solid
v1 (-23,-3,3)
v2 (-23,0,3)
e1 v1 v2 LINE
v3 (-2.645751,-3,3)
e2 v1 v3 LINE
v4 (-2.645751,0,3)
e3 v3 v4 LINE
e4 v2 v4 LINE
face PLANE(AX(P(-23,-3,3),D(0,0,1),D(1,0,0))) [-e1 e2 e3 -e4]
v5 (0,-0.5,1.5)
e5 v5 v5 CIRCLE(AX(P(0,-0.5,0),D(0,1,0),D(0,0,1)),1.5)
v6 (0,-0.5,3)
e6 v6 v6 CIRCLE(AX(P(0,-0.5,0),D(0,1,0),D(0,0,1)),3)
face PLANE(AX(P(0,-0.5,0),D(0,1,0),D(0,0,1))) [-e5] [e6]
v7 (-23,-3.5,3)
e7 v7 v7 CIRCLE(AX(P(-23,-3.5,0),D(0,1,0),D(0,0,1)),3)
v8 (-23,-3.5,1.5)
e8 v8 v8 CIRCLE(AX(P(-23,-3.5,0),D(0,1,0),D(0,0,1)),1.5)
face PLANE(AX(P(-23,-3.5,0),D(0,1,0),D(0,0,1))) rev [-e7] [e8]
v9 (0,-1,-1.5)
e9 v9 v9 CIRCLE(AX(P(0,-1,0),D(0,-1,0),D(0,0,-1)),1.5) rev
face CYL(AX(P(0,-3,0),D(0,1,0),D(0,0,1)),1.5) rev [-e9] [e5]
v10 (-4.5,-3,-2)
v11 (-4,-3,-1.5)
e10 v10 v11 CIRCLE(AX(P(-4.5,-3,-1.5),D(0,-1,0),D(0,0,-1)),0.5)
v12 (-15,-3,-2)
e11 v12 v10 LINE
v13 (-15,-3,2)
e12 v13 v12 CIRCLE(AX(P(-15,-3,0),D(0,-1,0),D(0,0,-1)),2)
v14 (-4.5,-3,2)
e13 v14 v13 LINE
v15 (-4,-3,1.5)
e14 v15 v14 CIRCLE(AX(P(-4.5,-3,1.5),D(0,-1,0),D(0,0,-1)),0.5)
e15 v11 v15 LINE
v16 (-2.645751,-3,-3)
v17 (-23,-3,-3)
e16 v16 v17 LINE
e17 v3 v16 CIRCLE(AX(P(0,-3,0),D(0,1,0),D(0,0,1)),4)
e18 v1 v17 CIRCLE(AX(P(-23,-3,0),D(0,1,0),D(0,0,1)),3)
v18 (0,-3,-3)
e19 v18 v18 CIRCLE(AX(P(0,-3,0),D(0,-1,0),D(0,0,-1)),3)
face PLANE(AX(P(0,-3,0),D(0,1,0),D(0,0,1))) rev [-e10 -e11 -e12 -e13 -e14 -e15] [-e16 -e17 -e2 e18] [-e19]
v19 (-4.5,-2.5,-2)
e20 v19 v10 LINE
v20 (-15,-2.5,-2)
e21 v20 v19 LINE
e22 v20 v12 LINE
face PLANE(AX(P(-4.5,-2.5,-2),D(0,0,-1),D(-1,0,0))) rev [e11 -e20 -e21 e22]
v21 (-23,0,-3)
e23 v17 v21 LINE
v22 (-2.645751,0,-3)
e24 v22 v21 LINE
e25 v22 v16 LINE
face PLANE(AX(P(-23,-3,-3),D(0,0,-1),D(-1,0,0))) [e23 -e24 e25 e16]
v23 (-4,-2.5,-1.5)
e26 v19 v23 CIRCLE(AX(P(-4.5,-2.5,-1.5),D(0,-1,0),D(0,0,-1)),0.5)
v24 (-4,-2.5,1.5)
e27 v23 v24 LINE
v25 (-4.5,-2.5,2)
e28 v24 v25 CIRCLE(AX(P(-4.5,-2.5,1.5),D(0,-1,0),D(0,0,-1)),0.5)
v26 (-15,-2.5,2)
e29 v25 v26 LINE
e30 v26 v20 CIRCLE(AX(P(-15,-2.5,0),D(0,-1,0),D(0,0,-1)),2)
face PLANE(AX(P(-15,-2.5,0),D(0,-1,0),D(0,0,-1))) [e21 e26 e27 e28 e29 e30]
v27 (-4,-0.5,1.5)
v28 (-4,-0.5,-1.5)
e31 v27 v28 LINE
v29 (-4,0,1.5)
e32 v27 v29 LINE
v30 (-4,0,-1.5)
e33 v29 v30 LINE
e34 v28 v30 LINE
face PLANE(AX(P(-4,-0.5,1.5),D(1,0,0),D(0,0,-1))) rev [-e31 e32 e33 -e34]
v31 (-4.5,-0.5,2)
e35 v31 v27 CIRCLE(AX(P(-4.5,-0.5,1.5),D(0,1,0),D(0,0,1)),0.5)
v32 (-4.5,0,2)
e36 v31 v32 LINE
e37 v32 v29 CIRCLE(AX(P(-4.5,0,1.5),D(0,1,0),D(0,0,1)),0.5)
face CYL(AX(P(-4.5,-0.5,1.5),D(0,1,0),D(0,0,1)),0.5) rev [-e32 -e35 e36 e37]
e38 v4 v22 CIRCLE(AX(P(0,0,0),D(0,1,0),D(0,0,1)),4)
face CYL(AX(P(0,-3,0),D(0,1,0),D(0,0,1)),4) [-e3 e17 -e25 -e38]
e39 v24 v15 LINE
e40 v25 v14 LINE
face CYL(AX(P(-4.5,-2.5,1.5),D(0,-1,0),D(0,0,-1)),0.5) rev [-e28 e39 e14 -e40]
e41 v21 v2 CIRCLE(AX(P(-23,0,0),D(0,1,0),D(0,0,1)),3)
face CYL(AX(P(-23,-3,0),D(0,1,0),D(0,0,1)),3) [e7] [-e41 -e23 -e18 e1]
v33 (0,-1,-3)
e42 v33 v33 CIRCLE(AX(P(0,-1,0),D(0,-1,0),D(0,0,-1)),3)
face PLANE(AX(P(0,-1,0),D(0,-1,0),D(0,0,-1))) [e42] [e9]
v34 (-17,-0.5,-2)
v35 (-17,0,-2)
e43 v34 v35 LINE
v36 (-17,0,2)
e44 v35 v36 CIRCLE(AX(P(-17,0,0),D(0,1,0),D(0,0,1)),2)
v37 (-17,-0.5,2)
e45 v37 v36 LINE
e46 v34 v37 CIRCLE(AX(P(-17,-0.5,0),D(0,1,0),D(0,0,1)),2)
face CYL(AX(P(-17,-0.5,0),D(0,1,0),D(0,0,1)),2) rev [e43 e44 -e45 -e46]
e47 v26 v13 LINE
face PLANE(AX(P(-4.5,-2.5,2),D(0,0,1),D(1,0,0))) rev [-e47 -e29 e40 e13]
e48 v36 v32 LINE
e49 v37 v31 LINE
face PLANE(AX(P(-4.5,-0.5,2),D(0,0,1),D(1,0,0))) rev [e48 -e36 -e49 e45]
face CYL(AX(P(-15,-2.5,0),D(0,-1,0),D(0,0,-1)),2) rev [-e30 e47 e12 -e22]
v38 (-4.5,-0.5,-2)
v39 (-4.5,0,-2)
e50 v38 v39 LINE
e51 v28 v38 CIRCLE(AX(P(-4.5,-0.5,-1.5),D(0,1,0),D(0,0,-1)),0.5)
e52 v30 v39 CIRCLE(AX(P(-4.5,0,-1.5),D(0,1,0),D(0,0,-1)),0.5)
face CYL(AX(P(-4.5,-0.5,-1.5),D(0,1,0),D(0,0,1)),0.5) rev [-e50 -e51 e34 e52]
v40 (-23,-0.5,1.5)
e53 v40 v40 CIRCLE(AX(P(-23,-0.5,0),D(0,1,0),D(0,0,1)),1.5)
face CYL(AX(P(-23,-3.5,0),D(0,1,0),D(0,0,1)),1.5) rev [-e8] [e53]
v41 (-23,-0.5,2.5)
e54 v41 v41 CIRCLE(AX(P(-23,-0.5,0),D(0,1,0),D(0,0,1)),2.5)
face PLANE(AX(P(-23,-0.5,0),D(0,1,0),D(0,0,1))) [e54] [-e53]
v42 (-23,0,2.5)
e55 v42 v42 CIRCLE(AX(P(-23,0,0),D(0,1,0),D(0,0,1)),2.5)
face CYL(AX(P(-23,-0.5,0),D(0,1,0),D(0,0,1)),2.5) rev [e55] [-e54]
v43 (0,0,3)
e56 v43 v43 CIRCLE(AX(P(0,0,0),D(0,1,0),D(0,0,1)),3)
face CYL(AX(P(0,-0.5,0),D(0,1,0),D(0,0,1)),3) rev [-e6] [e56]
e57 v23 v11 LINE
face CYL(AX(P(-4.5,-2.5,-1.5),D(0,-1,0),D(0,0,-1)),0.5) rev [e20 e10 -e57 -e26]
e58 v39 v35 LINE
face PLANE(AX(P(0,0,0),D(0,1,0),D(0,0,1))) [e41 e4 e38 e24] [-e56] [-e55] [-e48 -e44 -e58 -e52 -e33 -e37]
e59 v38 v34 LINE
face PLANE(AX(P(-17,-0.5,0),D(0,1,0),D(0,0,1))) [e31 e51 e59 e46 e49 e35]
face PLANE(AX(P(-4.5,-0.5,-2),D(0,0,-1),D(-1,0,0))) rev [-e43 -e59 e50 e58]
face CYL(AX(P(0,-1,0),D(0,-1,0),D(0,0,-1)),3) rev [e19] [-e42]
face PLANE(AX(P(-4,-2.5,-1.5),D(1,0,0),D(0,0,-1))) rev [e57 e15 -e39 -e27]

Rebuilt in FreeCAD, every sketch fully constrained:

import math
import FreeCAD as App
import Part
import Sketcher

V = App.Vector
Q = App.Units.Quantity


def add_polygon(sketch, points):
    """Adds a closed chain of lines whose ends are joined by coincident constraints."""
    first, n = sketch.GeometryCount, len(points)
    for a, b in zip(points, points[1:] + points[:1]):
        sketch.addGeometry(Part.LineSegment(App.Vector(*a, 0), App.Vector(*b, 0)), False)
    for i in range(n):
        sketch.addConstraint(Sketcher.Constraint("Coincident", first + i, 2, first + (i + 1) % n, 1))

doc = App.newDocument("Part")
params = doc.addObject("Spreadsheet::Sheet", "Params")
for row, (alias, value) in enumerate([
    ("sketch1_diameter", "8 mm"),
    ("pad1_length", "3 mm"),
    ("sketch2_width", "23 mm"),
    ("sketch2_height", "6 mm"),
    ("pad2_length", "3 mm"),
    ("sketch3_diameter", "6 mm"),
    ("pocket1_length", "0.5 mm"),
    ("sketch4_diameter", "3 mm"),
    ("sketch5_diameter", "6 mm"),
    ("pocket3_length", "2 mm"),
    ("sketch6_diameter", "6 mm"),
    ("pad3_length", "3 mm"),
    ("sketch7_diameter", "5 mm"),
    ("pocket4_length", "0.5 mm"),
    ("sketch8_radius", "2 mm"),
    ("sketch8_radius2", "0.5 mm"),
    ("sketch8_width", "12.5 mm"),
    ("pocket5_length", "0.5 mm"),
    ("sketch9_radius", "2 mm"),
    ("sketch9_radius2", "0.5 mm"),
    ("sketch9_width", "10.5 mm"),
    ("pocket6_length", "0.5 mm"),
    ("sketch10_diameter", "6 mm"),
    ("pad4_length", "0.5 mm"),
    ("sketch11_diameter", "3 mm"),
], start=1):
    params.set(f"A{row}", alias)
    params.set(f"B{row}", "=" + value)
    params.setAlias(f"B{row}", alias)

body = doc.addObject("PartDesign::Body", "Body")

# Sketch on XZ plane
sketch1 = body.newObject("Sketcher::SketchObject", "Sketch")
sketch1.AttachmentSupport = (doc.getObject("XZ_Plane"), [""])
sketch1.MapMode = "FlatFace"
sketch1.addGeometry(Part.Circle(V(0, 0, 0), V(0, 0, 1), 4), False)
sketch1.addConstraint([
    Sketcher.Constraint("Coincident", 0, 3, -1, 1),
    Sketcher.Constraint("Diameter", 0, Q("8 mm")),
])
sketch1.setExpression("Constraints[1]", "Params.sketch1_diameter")
pad1 = body.newObject("PartDesign::Pad", "Pad")
pad1.Profile = sketch1
pad1.setExpression("Length", "Params.pad1_length")

# Sketch on XZ plane
sketch2 = body.newObject("Sketcher::SketchObject", "Sketch001")
sketch2.AttachmentSupport = (doc.getObject("XZ_Plane"), [""])
sketch2.MapMode = "FlatFace"
add_polygon(sketch2, [(-23, -3), (-23, 3), (0, 3), (0, -3)])  # lines 0-3
sketch2.addConstraint([
    Sketcher.Constraint("Vertical", 0),
    Sketcher.Constraint("Horizontal", 1),
    Sketcher.Constraint("Vertical", 2),
    Sketcher.Constraint("Horizontal", 3),
    Sketcher.Constraint("Symmetric", 1, 2, 2, 2, -1, 1),
    Sketcher.Constraint("DistanceX", 1, 1, 1, 2, Q("23 mm")),
    Sketcher.Constraint("DistanceY", 0, 1, 0, 2, Q("6 mm")),
])
sketch2.setExpression("Constraints[9]", "Params.sketch2_width")
sketch2.setExpression("Constraints[10]", "Params.sketch2_height")
pad2 = body.newObject("PartDesign::Pad", "Pad001")
pad2.Profile = sketch2
pad2.setExpression("Length", "Params.pad2_length")

# Sketch on XZ plane
sketch3 = body.newObject("Sketcher::SketchObject", "Sketch002")
sketch3.AttachmentSupport = (doc.getObject("XZ_Plane"), [""])
sketch3.MapMode = "FlatFace"
sketch3.addGeometry(Part.Circle(V(0, 0, 0), V(0, 0, 1), 3), False)
sketch3.addConstraint([
    Sketcher.Constraint("Coincident", 0, 3, -1, 1),
    Sketcher.Constraint("Diameter", 0, Q("6 mm")),
])
sketch3.setExpression("Constraints[1]", "Params.sketch3_diameter")
pocket1 = body.newObject("PartDesign::Pocket", "Pocket")
pocket1.Profile = sketch3
pocket1.setExpression("Length", "Params.pocket1_length")
pocket1.Reversed = True

# Sketch on XZ plane
sketch4 = body.newObject("Sketcher::SketchObject", "Sketch003")
sketch4.AttachmentSupport = (doc.getObject("XZ_Plane"), [""])
sketch4.MapMode = "FlatFace"
sketch4.AttachmentOffset = App.Placement(V(0, 0, 0.5), App.Rotation())
sketch4.addGeometry(Part.Circle(V(0, 0, 0), V(0, 0, 1), 1.5), False)
sketch4.addConstraint([
    Sketcher.Constraint("Coincident", 0, 3, -1, 1),
    Sketcher.Constraint("Diameter", 0, Q("3 mm")),
])
sketch4.setExpression("Constraints[1]", "Params.sketch4_diameter")
pocket2 = body.newObject("PartDesign::Pocket", "Pocket001")
pocket2.Profile = sketch4
pocket2.Type = "ThroughAll"
pocket2.Reversed = True

# Sketch on XZ plane
sketch5 = body.newObject("Sketcher::SketchObject", "Sketch004")
sketch5.AttachmentSupport = (doc.getObject("XZ_Plane"), [""])
sketch5.MapMode = "FlatFace"
sketch5.AttachmentOffset = App.Placement(V(0, 0, 3), App.Rotation())
sketch5.addGeometry(Part.Circle(V(0, 0, 0), V(0, 0, 1), 3), False)
sketch5.addConstraint([
    Sketcher.Constraint("Coincident", 0, 3, -1, 1),
    Sketcher.Constraint("Diameter", 0, Q("6 mm")),
])
sketch5.setExpression("Constraints[1]", "Params.sketch5_diameter")
pocket3 = body.newObject("PartDesign::Pocket", "Pocket002")
pocket3.Profile = sketch5
pocket3.setExpression("Length", "Params.pocket3_length")

# Sketch on XZ plane
sketch6 = body.newObject("Sketcher::SketchObject", "Sketch005")
sketch6.AttachmentSupport = (doc.getObject("XZ_Plane"), [""])
sketch6.MapMode = "FlatFace"
sketch6.addGeometry(Part.Circle(V(-23, 0, 0), V(0, 0, 1), 3), False)
sketch6.addConstraint([
    Sketcher.Constraint("PointOnObject", 0, 3, -1),
    Sketcher.Constraint("Diameter", 0, Q("6 mm")),
    Sketcher.Constraint("DistanceX", 0, 3, -1, 1, Q("23 mm")),
])
sketch6.setExpression("Constraints[1]", "Params.sketch6_diameter")
pad3 = body.newObject("PartDesign::Pad", "Pad002")
pad3.Profile = sketch6
pad3.setExpression("Length", "Params.pad3_length")

# Sketch on XZ plane
sketch7 = body.newObject("Sketcher::SketchObject", "Sketch006")
sketch7.AttachmentSupport = (doc.getObject("XZ_Plane"), [""])
sketch7.MapMode = "FlatFace"
sketch7.addGeometry(Part.Circle(V(-23, 0, 0), V(0, 0, 1), 2.5), False)
sketch7.addConstraint([
    Sketcher.Constraint("PointOnObject", 0, 3, -1),
    Sketcher.Constraint("Diameter", 0, Q("5 mm")),
    Sketcher.Constraint("DistanceX", 0, 3, -1, 1, Q("23 mm")),
])
sketch7.setExpression("Constraints[1]", "Params.sketch7_diameter")
pocket4 = body.newObject("PartDesign::Pocket", "Pocket003")
pocket4.Profile = sketch7
pocket4.setExpression("Length", "Params.pocket4_length")
pocket4.Reversed = True

# Sketch on XZ plane
sketch8 = body.newObject("Sketcher::SketchObject", "Sketch007")
sketch8.AttachmentSupport = (doc.getObject("XZ_Plane"), [""])
sketch8.MapMode = "FlatFace"
sketch8.addGeometry([
    Part.LineSegment(V(-17, 2, 0), V(-4.5, 2, 0)),  # 0
    Part.ArcOfCircle(Part.Circle(V(-4.5, 1.5, 0), V(0, 0, 1), 0.5), math.radians(0), math.radians(90)),  # 1
    Part.LineSegment(V(-4, 1.5, 0), V(-4, -1.5, 0)),  # 2
    Part.ArcOfCircle(Part.Circle(V(-4.5, -1.5, 0), V(0, 0, 1), 0.5), math.radians(-90), math.radians(0)),  # 3
    Part.LineSegment(V(-4.5, -2, 0), V(-17, -2, 0)),  # 4
    Part.ArcOfCircle(Part.Circle(V(-17, 0, 0), V(0, 0, 1), 2), math.radians(90), math.radians(270)),  # 5
], False)
sketch8.addConstraint([
    Sketcher.Constraint("Tangent", 0, 2, 1, 2),
    Sketcher.Constraint("Tangent", 1, 1, 2, 1),
    Sketcher.Constraint("Tangent", 2, 2, 3, 2),
    Sketcher.Constraint("Tangent", 3, 1, 4, 1),
    Sketcher.Constraint("Tangent", 4, 2, 5, 2),
    Sketcher.Constraint("Tangent", 5, 1, 0, 1),
    Sketcher.Constraint("Horizontal", 0),
    Sketcher.Constraint("Vertical", 2),
    Sketcher.Constraint("Horizontal", 4),
    Sketcher.Constraint("Equal", 1, 3),
    Sketcher.Constraint("PointOnObject", 5, 3, -1),
    Sketcher.Constraint("Radius", 5, Q("2 mm")),
    Sketcher.Constraint("Radius", 1, Q("0.5 mm")),
    Sketcher.Constraint("DistanceX", 0, 1, 0, 2, Q("12.5 mm")),
    Sketcher.Constraint("DistanceX", 5, 3, -1, 1, Q("17 mm")),
])
sketch8.setExpression("Constraints[11]", "Params.sketch8_radius")
sketch8.setExpression("Constraints[12]", "Params.sketch8_radius2")
sketch8.setExpression("Constraints[13]", "Params.sketch8_width")
pocket5 = body.newObject("PartDesign::Pocket", "Pocket004")
pocket5.Profile = sketch8
pocket5.setExpression("Length", "Params.pocket5_length")
pocket5.Reversed = True

# Sketch on XZ plane
sketch9 = body.newObject("Sketcher::SketchObject", "Sketch008")
sketch9.AttachmentSupport = (doc.getObject("XZ_Plane"), [""])
sketch9.MapMode = "FlatFace"
sketch9.AttachmentOffset = App.Placement(V(0, 0, 3), App.Rotation())
sketch9.addGeometry([
    Part.LineSegment(V(-15, -2, 0), V(-4.5, -2, 0)),  # 0
    Part.ArcOfCircle(Part.Circle(V(-4.5, -1.5, 0), V(0, 0, 1), 0.5), math.radians(-90), math.radians(0)),  # 1
    Part.LineSegment(V(-4, -1.5, 0), V(-4, 1.5, 0)),  # 2
    Part.ArcOfCircle(Part.Circle(V(-4.5, 1.5, 0), V(0, 0, 1), 0.5), math.radians(0), math.radians(90)),  # 3
    Part.LineSegment(V(-4.5, 2, 0), V(-15, 2, 0)),  # 4
    Part.ArcOfCircle(Part.Circle(V(-15, 0, 0), V(0, 0, 1), 2), math.radians(90), math.radians(270)),  # 5
], False)
sketch9.addConstraint([
    Sketcher.Constraint("Tangent", 0, 2, 1, 1),
    Sketcher.Constraint("Tangent", 1, 2, 2, 1),
    Sketcher.Constraint("Tangent", 2, 2, 3, 1),
    Sketcher.Constraint("Tangent", 3, 2, 4, 1),
    Sketcher.Constraint("Tangent", 4, 2, 5, 1),
    Sketcher.Constraint("Tangent", 5, 2, 0, 1),
    Sketcher.Constraint("Horizontal", 0),
    Sketcher.Constraint("Vertical", 2),
    Sketcher.Constraint("Horizontal", 4),
    Sketcher.Constraint("Equal", 1, 3),
    Sketcher.Constraint("PointOnObject", 5, 3, -1),
    Sketcher.Constraint("Radius", 5, Q("2 mm")),
    Sketcher.Constraint("Radius", 1, Q("0.5 mm")),
    Sketcher.Constraint("DistanceX", 0, 1, 0, 2, Q("10.5 mm")),
    Sketcher.Constraint("DistanceX", 5, 3, -1, 1, Q("15 mm")),
])
sketch9.setExpression("Constraints[11]", "Params.sketch9_radius")
sketch9.setExpression("Constraints[12]", "Params.sketch9_radius2")
sketch9.setExpression("Constraints[13]", "Params.sketch9_width")
pocket6 = body.newObject("PartDesign::Pocket", "Pocket005")
pocket6.Profile = sketch9
pocket6.setExpression("Length", "Params.pocket6_length")

# Sketch on XZ plane
sketch10 = body.newObject("Sketcher::SketchObject", "Sketch009")
sketch10.AttachmentSupport = (doc.getObject("XZ_Plane"), [""])
sketch10.MapMode = "FlatFace"
sketch10.AttachmentOffset = App.Placement(V(0, 0, 3), App.Rotation())
sketch10.addGeometry(Part.Circle(V(-23, 0, 0), V(0, 0, 1), 3), False)
sketch10.addConstraint([
    Sketcher.Constraint("PointOnObject", 0, 3, -1),
    Sketcher.Constraint("Diameter", 0, Q("6 mm")),
    Sketcher.Constraint("DistanceX", 0, 3, -1, 1, Q("23 mm")),
])
sketch10.setExpression("Constraints[1]", "Params.sketch10_diameter")
pad4 = body.newObject("PartDesign::Pad", "Pad003")
pad4.Profile = sketch10
pad4.setExpression("Length", "Params.pad4_length")

# Sketch on XZ plane
sketch11 = body.newObject("Sketcher::SketchObject", "Sketch010")
sketch11.AttachmentSupport = (doc.getObject("XZ_Plane"), [""])
sketch11.MapMode = "FlatFace"
sketch11.AttachmentOffset = App.Placement(V(0, 0, 0.5), App.Rotation())
sketch11.addGeometry(Part.Circle(V(-23, 0, 0), V(0, 0, 1), 1.5), False)
sketch11.addConstraint([
    Sketcher.Constraint("PointOnObject", 0, 3, -1),
    Sketcher.Constraint("Diameter", 0, Q("3 mm")),
    Sketcher.Constraint("DistanceX", 0, 3, -1, 1, Q("23 mm")),
])
sketch11.setExpression("Constraints[1]", "Params.sketch11_diameter")
pocket7 = body.newObject("PartDesign::Pocket", "Pocket006")
pocket7.Profile = sketch11
pocket7.Type = "ThroughAll"
pocket7.Reversed = True

doc.recompute()
